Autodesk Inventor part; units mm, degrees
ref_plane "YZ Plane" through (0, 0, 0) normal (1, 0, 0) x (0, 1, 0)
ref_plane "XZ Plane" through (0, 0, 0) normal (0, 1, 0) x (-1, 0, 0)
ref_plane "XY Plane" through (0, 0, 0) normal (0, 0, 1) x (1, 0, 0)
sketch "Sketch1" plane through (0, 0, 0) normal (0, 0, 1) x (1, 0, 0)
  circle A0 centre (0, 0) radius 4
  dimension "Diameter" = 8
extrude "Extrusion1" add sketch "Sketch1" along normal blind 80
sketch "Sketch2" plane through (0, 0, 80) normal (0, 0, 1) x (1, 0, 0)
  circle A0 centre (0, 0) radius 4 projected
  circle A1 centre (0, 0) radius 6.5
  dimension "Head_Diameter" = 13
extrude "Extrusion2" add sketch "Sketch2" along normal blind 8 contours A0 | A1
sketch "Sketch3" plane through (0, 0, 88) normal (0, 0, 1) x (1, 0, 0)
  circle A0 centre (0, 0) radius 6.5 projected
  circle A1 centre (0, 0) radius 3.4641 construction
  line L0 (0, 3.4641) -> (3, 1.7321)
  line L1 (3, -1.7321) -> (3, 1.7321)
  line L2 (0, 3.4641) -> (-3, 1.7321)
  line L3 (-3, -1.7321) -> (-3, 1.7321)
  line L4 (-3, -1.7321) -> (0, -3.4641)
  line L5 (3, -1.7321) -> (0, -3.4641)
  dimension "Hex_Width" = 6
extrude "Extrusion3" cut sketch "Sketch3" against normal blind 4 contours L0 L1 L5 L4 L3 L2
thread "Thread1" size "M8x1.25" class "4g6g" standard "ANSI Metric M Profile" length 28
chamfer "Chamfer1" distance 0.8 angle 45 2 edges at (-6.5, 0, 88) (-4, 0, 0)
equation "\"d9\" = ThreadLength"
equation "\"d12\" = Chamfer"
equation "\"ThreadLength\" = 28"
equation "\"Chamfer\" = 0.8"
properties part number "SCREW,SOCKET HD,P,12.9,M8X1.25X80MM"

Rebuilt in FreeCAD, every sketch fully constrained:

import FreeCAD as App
import Part
import Sketcher
from FreeCAD import Vector
Q = App.Units.Quantity


def edges_at(feature, points):
    """Names of the edges that pass closest to the given points."""
    edges = feature.Shape.Edges
    near = lambda p: min(range(len(edges)), key=lambda i: edges[i].distToShape(Part.Vertex(*p))[0])
    return sorted({f"Edge{near(p) + 1}" for p in points})


def add_polygon(sketch, points):
    """Adds a closed chain of lines whose ends are joined by coincident constraints."""
    first, n = sketch.GeometryCount, len(points)
    for a, b in zip(points, points[1:] + points[:1]):
        sketch.addGeometry(Part.LineSegment(App.Vector(*a, 0), App.Vector(*b, 0)), False)
    for i in range(n):
        sketch.addConstraint(Sketcher.Constraint("Coincident", first + i, 2, first + (i + 1) % n, 1))

doc = App.newDocument("Part")
body = doc.addObject("PartDesign::Body", "Body")

sketch1 = doc.addObject("Sketcher::SketchObject", "Sketch")
body.addObject(sketch1)
sketch1.AttachmentSupport = (doc.XY_Plane, [""])
sketch1.MapMode = "FlatFace"
sketch1.addGeometry(Part.Circle(Vector(0, 0, 0), Vector(0, 0, 1), 4), False)
sketch1.addConstraint([
    Sketcher.Constraint("Coincident", 0, 3, -1, 1),
    Sketcher.Constraint("Diameter", 0, 8.0),
])
pad1 = doc.addObject("PartDesign::Pad", "Pad")
body.addObject(pad1)
pad1.Profile = sketch1
pad1.Length = 80

sketch2 = doc.addObject("Sketcher::SketchObject", "Sketch001")
body.addObject(sketch2)
sketch2.AttachmentSupport = (doc.XY_Plane, [""])
sketch2.MapMode = "FlatFace"
sketch2.AttachmentOffset = App.Placement(Vector(0, 0, 80), App.Rotation())
sketch2.addGeometry(Part.Circle(Vector(0, 0, 0), Vector(0, 0, 1), 6), False)
sketch2.addConstraint([
    Sketcher.Constraint("Coincident", 0, 3, -1, 1),
    Sketcher.Constraint("Diameter", 0, 13.0),
])
pad2 = doc.addObject("PartDesign::Pad", "Pad001")
body.addObject(pad2)
pad2.Profile = sketch2
pad2.Length = 8

sketch3 = doc.addObject("Sketcher::SketchObject", "Sketch002")
body.addObject(sketch3)
sketch3.AttachmentSupport = (doc.XY_Plane, [""])
sketch3.MapMode = "FlatFace"
sketch3.AttachmentOffset = App.Placement(Vector(0, 0, 88), App.Rotation())
add_polygon(sketch3, [(3, 1.7), (0, 3.5), (-3, 1.7), (-3, -1.7), (0, -3.5), (3, -1.7)])
sketch3.addConstraint([
    Sketcher.Constraint("Vertical", 2),
    Sketcher.Constraint("Vertical", 5),
    Sketcher.Constraint("Symmetric", 0, 2, 3, 2, -1, 1),
    Sketcher.Constraint("Symmetric", 1, 2, 4, 2, -1, 1),
    Sketcher.Constraint("PointOnObject", 0, 2, -2),
    Sketcher.Constraint("Parallel", 0, 3),
    Sketcher.Constraint("Horizontal", 2, 2, 4, 2),
    Sketcher.Constraint("DistanceX", 2, 2, 4, 2, 6.0),
    Sketcher.Constraint("Angle", 0, Q("150.0007 deg")),
    Sketcher.Constraint("DistanceY", 2, 2, 2, 1, 3.4642),
])
pocket1 = doc.addObject("PartDesign::Pocket", "Pocket")
body.addObject(pocket1)
pocket1.Profile = sketch3
pocket1.Length = 4
doc.recompute()

chamfer = doc.addObject("PartDesign::Chamfer", "Chamfer")
body.addObject(chamfer)
chamfer.Base = (pocket1, edges_at(pocket1, [(-6.5, 0, 88), (-4, 0, 0)]))
chamfer.Size = 0.8

doc.recompute()
